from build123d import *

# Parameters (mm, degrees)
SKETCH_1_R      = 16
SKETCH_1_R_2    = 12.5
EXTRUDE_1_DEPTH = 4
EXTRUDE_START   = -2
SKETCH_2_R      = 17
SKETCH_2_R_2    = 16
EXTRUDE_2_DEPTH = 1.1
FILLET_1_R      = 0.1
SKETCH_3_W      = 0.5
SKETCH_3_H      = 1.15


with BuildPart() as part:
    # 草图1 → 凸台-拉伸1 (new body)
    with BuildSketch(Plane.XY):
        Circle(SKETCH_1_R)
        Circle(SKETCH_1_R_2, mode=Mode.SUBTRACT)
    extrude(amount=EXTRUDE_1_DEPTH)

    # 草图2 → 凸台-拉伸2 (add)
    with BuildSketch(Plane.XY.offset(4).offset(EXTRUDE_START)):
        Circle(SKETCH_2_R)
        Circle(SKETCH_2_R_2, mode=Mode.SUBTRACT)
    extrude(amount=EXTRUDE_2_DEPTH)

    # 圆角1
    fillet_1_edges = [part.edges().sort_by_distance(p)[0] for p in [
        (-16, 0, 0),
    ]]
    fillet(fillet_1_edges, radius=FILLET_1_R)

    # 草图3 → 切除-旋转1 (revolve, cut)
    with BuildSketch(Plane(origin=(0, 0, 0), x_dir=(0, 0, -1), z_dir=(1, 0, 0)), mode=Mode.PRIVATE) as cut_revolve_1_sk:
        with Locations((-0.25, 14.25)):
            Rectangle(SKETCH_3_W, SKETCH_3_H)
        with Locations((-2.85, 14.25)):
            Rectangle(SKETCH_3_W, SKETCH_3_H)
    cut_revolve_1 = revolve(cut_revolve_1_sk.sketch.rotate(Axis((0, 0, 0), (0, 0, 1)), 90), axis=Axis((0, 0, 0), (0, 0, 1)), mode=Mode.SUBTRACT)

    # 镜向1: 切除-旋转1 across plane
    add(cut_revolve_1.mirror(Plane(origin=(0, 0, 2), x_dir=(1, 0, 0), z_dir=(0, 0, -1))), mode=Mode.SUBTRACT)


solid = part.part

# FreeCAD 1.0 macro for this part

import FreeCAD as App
import Part
import Sketcher

V = App.Vector


def edges_at(feature, points):
    """Names of the edges that pass closest to the given points."""
    edges = feature.Shape.Edges
    near = lambda p: min(range(len(edges)), key=lambda i: edges[i].distToShape(Part.Vertex(*p))[0])
    return sorted({f"Edge{near(p) + 1}" for p in points})


def add_polygon(sketch, points):
    """Adds a closed chain of lines whose ends are joined by coincident constraints."""
    first, n = sketch.GeometryCount, len(points)
    for a, b in zip(points, points[1:] + points[:1]):
        sketch.addGeometry(Part.LineSegment(App.Vector(*a, 0), App.Vector(*b, 0)), False)
    for i in range(n):
        sketch.addConstraint(Sketcher.Constraint("Coincident", first + i, 2, first + (i + 1) % n, 1))

doc = App.newDocument("Part")
body = doc.addObject("PartDesign::Body", "Body")

# Sketch on XY plane
sketch1 = body.newObject("Sketcher::SketchObject", "Sketch")
sketch1.AttachmentSupport = (doc.getObject("XY_Plane"), [""])
sketch1.MapMode = "FlatFace"
sketch1.addGeometry(Part.Circle(V(0, 0, 0), V(0, 0, 1), 16), False)
sketch1.addGeometry(Part.Circle(V(0, 0, 0), V(0, 0, 1), 12.5), False)
sketch1.addConstraint(Sketcher.Constraint("Coincident", 0, 3, -1, 1))
sketch1.addConstraint(Sketcher.Constraint("Coincident", 1, 3, -1, 1))
sketch1.addConstraint(Sketcher.Constraint("Diameter", 0, 32.0))
sketch1.addConstraint(Sketcher.Constraint("Diameter", 1, 25.0))
pad1 = body.newObject("PartDesign::Pad", "Pad")
pad1.Profile = sketch1
pad1.Length = 4

# Sketch on XY plane
sketch2 = body.newObject("Sketcher::SketchObject", "Sketch001")
sketch2.AttachmentSupport = (doc.getObject("XY_Plane"), [""])
sketch2.MapMode = "FlatFace"
sketch2.AttachmentOffset = App.Placement(V(0, 0, 2), App.Rotation())
sketch2.addGeometry(Part.Circle(V(0, 0, 0), V(0, 0, 1), 17), False)
sketch2.addGeometry(Part.Circle(V(0, 0, 0), V(0, 0, 1), 16), False)
sketch2.addConstraint(Sketcher.Constraint("Coincident", 0, 3, -1, 1))
sketch2.addConstraint(Sketcher.Constraint("Coincident", 1, 3, -1, 1))
sketch2.addConstraint(Sketcher.Constraint("Diameter", 0, 34.0))
sketch2.addConstraint(Sketcher.Constraint("Diameter", 1, 32.0))
pad2 = body.newObject("PartDesign::Pad", "Pad001")
pad2.Profile = sketch2
pad2.Length = 1.1
doc.recompute()

fillet = body.newObject("PartDesign::Fillet", "Fillet")
fillet.Base = (pad2, edges_at(pad2, [(-16, 0, 0)]))
fillet.Radius = 0.1

# Sketch on YZ plane
sketch3 = body.newObject("Sketcher::SketchObject", "Sketch002")
sketch3.AttachmentSupport = (doc.getObject("YZ_Plane"), [""])
sketch3.MapMode = "FlatFace"
add_polygon(sketch3, [(14.825, 0.5), (13.675, 0.5), (13.675, 0), (14.825, 0)])  # lines 0-3
add_polygon(sketch3, [(14.825, 3.1), (13.675, 3.1), (13.675, 2.6), (14.825, 2.6)])  # lines 4-7
sketch3.addConstraint(Sketcher.Constraint("Horizontal", 0))
sketch3.addConstraint(Sketcher.Constraint("Vertical", 1))
sketch3.addConstraint(Sketcher.Constraint("Horizontal", 2))
sketch3.addConstraint(Sketcher.Constraint("Vertical", 3))
sketch3.addConstraint(Sketcher.Constraint("Horizontal", 4))
sketch3.addConstraint(Sketcher.Constraint("Vertical", 5))
sketch3.addConstraint(Sketcher.Constraint("Horizontal", 6))
sketch3.addConstraint(Sketcher.Constraint("Vertical", 7))
sketch3.addConstraint(Sketcher.Constraint("PointOnObject", 1, 2, -1))
sketch3.addConstraint(Sketcher.Constraint("Vertical", 1, 2, 4, 2))
sketch3.addConstraint(Sketcher.Constraint("Vertical", 3, 2, 6, 2))
sketch3.addConstraint(Sketcher.Constraint("Equal", 3, 5))
sketch3.addConstraint(Sketcher.Constraint("DistanceY", 1, 2, 1, 1, 0.5))
sketch3.addConstraint(Sketcher.Constraint("DistanceX", 0, 2, 0, 1, 1.15))
sketch3.addConstraint(Sketcher.Constraint("DistanceY", -1, 1, 4, 2, 3.1))
sketch3.addConstraint(Sketcher.Constraint("DistanceX", -1, 1, 0, 2, 13.675))
groove = body.newObject("PartDesign::Groove", "Groove")
groove.Profile = sketch3
groove.ReferenceAxis = (sketch3, ["V_Axis"])
groove.Angle = 360
doc.recompute()

datumplane = body.newObject("PartDesign::Plane", "DatumPlane")
datumplane.AttachmentSupport = (doc.getObject("XY_Plane"), [""])
datumplane.MapMode = "FlatFace"
datumplane.AttachmentOffset = App.Placement(V(0, 0, 2), App.Rotation())
mirrored = body.newObject("PartDesign::Mirrored", "Mirrored")
mirrored.Originals = [groove]
mirrored.MirrorPlane = (datumplane, [""])
body.Tip = mirrored

doc.recompute()
